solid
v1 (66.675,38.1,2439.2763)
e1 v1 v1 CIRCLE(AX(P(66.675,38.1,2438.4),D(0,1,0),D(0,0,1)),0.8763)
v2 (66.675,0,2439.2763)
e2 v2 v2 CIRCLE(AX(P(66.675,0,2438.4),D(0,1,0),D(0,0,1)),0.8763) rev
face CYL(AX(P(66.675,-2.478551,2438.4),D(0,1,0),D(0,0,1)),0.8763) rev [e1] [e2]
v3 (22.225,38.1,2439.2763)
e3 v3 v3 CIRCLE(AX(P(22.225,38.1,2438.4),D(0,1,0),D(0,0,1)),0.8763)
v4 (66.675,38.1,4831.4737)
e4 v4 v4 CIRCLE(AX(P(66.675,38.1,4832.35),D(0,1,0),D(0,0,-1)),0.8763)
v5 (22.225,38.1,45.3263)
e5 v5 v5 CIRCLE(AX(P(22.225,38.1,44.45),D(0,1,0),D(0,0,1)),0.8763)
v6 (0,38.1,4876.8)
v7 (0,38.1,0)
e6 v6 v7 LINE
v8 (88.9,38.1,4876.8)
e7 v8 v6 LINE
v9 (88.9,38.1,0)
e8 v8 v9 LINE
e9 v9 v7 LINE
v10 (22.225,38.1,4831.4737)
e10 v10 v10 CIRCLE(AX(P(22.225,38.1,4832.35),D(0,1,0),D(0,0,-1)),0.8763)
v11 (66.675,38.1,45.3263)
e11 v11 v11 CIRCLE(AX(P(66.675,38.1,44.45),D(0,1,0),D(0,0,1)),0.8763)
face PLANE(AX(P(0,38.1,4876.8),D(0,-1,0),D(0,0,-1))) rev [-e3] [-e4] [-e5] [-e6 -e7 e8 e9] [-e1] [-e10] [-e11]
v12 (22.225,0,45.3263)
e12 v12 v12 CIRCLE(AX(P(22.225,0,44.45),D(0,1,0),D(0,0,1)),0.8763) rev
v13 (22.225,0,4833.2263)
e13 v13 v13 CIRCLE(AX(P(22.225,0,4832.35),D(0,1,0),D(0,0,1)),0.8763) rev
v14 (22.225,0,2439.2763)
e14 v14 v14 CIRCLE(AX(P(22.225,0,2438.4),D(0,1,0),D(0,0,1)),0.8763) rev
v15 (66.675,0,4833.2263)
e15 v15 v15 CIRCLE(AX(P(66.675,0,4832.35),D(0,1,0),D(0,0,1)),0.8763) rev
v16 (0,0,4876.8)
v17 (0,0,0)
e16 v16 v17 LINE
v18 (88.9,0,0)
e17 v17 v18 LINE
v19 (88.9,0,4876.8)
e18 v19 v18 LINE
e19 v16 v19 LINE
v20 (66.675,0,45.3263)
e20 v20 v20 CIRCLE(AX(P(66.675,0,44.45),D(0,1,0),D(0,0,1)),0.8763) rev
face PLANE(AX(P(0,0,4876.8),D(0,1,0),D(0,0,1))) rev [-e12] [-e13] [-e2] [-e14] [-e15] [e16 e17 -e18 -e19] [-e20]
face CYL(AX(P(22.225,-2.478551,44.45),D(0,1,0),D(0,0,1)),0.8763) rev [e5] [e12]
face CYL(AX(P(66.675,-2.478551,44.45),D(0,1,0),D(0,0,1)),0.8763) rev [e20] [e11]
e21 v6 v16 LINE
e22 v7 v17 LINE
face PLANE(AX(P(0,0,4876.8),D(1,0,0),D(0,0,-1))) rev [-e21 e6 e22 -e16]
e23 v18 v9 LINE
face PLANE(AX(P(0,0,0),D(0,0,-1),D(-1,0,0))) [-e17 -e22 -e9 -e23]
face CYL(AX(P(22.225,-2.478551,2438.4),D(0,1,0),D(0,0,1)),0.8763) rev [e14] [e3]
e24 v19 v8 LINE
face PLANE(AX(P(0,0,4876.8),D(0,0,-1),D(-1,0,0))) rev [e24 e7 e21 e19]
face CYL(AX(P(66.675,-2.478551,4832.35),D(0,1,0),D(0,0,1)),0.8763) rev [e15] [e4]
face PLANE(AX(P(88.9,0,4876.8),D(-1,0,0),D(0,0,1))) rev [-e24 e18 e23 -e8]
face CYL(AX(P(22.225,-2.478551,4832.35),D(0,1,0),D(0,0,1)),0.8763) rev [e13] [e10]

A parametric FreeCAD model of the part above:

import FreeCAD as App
import Part
import Sketcher
Q = App.Units.Quantity


def add_polygon(sketch, points):
    """Adds a closed chain of lines whose ends are joined by coincident constraints."""
    first, n = sketch.GeometryCount, len(points)
    for a, b in zip(points, points[1:] + points[:1]):
        sketch.addGeometry(Part.LineSegment(App.Vector(*a, 0), App.Vector(*b, 0)), False)
    for i in range(n):
        sketch.addConstraint(Sketcher.Constraint("Coincident", first + i, 2, first + (i + 1) % n, 1))

doc = App.newDocument("Part")
body = doc.addObject("PartDesign::Body", "Body")

# Sketch on XY plane
sketch1 = body.newObject("Sketcher::SketchObject", "Sketch")
sketch1.AttachmentSupport = (doc.getObject("XY_Plane"), [""])
sketch1.MapMode = "FlatFace"
add_polygon(sketch1, [(0, 38.1), (0, 0), (88.9, 0), (88.9, 38.1)])  # lines 0-3
sketch1.addConstraint([
    Sketcher.Constraint("Vertical", 0),
    Sketcher.Constraint("Horizontal", 1),
    Sketcher.Constraint("Vertical", 2),
    Sketcher.Constraint("Horizontal", 3),
    Sketcher.Constraint("Coincident", 0, 2, -1, 1),
    Sketcher.Constraint("DistanceX", 1, 1, 1, 2, Q("3.5 in")),
    Sketcher.Constraint("DistanceY", 0, 2, 0, 1, Q("1.5 in")),
])
pad1 = body.newObject("PartDesign::Pad", "Pad")
pad1.Profile = sketch1
pad1.Length = Q("192 in")

# Sketch on XZ plane
sketch2 = body.newObject("Sketcher::SketchObject", "Sketch001")
sketch2.AttachmentSupport = (doc.getObject("XZ_Plane"), [""])
sketch2.MapMode = "FlatFace"
sketch2.AttachmentOffset = App.Placement(App.Vector(0, 0, -1.5 * 25.4), App.Rotation())
sketch2.addGeometry([
    Part.Circle(App.Vector(66.675, 2438.4, 0), App.Vector(0, 0, 1), 0.8763),  # 0
    Part.Circle(App.Vector(22.225, 2438.4, 0), App.Vector(0, 0, 1), 0.8763),  # 1
    Part.Circle(App.Vector(66.675, 44.45, 0), App.Vector(0, 0, 1), 0.8763),  # 2
    Part.Circle(App.Vector(22.225, 44.45, 0), App.Vector(0, 0, 1), 0.8763),  # 3
    Part.Circle(App.Vector(22.225, 4832.35, 0), App.Vector(0, 0, 1), 0.8763),  # 4
    Part.Circle(App.Vector(66.675, 4832.35, 0), App.Vector(0, 0, 1), 0.8763),  # 5
], False)
sketch2.addConstraint([
    Sketcher.Constraint("Equal", 0, 1),
    Sketcher.Constraint("Equal", 1, 2),
    Sketcher.Constraint("Equal", 2, 3),
    Sketcher.Constraint("Equal", 3, 4),
    Sketcher.Constraint("Equal", 4, 5),
    Sketcher.Constraint("Horizontal", 0, 3, 1, 3),
    Sketcher.Constraint("Horizontal", 2, 3, 3, 3),
    Sketcher.Constraint("Horizontal", 4, 3, 5, 3),
    Sketcher.Constraint("Vertical", 0, 3, 2, 3),
    Sketcher.Constraint("Vertical", 1, 3, 3, 3),
    Sketcher.Constraint("Vertical", 3, 3, 4, 3),
    Sketcher.Constraint("Vertical", 2, 3, 5, 3),
    Sketcher.Constraint("Diameter", 0, Q("0.069 in")),
    Sketcher.Constraint("DistanceY", -1, 1, 0, 3, Q("96 in")),
    Sketcher.Constraint("DistanceY", 3, 3, 4, 3, Q("188.5 in")),
    Sketcher.Constraint("DistanceY", -1, 1, 2, 3, Q("1.75 in")),
    Sketcher.Constraint("DistanceX", 1, 3, 0, 3, Q("1.75 in")),
    Sketcher.Constraint("DistanceX", -1, 1, 0, 3, Q("2.625 in")),
])
pocket1 = body.newObject("PartDesign::Pocket", "Pocket")
pocket1.Profile = sketch2
pocket1.Length = Q("1.5 in")
pocket1.Reversed = True

doc.recompute()
